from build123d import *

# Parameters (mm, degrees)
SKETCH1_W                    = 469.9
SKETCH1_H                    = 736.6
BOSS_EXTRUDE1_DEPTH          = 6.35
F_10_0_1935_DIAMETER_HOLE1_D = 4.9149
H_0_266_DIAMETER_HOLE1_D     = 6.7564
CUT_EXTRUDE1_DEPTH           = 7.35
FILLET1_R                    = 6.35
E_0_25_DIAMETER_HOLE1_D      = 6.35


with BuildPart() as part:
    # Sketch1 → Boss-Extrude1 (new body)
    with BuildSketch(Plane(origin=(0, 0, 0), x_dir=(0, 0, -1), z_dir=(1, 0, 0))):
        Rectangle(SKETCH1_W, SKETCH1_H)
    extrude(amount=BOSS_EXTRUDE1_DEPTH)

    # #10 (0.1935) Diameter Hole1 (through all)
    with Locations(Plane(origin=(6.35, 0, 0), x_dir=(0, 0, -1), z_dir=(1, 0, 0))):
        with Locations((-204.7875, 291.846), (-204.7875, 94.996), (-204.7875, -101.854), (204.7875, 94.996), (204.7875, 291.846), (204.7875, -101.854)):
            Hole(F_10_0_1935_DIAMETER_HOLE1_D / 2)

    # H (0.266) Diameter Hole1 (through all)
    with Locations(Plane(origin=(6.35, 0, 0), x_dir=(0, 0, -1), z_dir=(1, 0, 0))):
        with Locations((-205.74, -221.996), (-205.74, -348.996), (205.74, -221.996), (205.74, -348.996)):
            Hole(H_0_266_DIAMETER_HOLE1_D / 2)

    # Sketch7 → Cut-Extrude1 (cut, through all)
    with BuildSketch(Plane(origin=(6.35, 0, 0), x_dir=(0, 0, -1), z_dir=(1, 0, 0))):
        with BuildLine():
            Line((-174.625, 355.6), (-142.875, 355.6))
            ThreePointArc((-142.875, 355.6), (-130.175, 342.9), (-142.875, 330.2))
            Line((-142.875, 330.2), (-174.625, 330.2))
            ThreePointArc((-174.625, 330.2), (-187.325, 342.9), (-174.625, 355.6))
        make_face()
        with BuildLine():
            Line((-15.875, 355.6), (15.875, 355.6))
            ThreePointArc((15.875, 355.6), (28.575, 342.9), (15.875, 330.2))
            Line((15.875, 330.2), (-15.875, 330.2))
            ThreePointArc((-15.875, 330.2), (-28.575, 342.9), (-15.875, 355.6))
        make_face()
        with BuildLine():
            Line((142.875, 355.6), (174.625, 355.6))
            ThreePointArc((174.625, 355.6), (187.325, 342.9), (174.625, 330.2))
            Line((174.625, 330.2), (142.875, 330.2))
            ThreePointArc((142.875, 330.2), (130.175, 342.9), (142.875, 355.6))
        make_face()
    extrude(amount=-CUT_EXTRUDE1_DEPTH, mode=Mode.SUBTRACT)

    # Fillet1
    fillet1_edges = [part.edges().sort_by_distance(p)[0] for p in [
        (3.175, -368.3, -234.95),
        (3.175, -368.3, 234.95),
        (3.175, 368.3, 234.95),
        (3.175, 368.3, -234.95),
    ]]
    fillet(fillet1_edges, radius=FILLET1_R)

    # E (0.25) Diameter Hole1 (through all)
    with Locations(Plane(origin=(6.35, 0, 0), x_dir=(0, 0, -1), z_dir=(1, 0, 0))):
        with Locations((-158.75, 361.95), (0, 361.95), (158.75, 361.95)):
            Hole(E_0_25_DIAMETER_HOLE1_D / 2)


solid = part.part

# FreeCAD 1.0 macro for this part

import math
import FreeCAD as App
import Part
import Sketcher

V = App.Vector
Q = App.Units.Quantity


def edges_at(feature, points):
    """Names of the edges that pass closest to the given points."""
    edges = feature.Shape.Edges
    near = lambda p: min(range(len(edges)), key=lambda i: edges[i].distToShape(Part.Vertex(*p))[0])
    return sorted({f"Edge{near(p) + 1}" for p in points})

doc = App.newDocument("Part")
params = doc.addObject("Spreadsheet::Sheet", "Params")
for row, (alias, value) in enumerate([
    ("sketch1_width", "29 in"),
    ("sketch1_height", "18.5 in"),
    ("pad1_length", "0.25 in"),
    ("hole_diameter", "0.1935 in"),
    ("sketch3_diameter", "0.266 in"),
    ("hole2_diameter", "0.266 in"),
    ("sketch4_radius", "0.5 in"),
    ("sketch4_height", "1.25 in"),
    ("fillet_radius", "0.25 in"),
    ("sketch5_diameter", "0.25 in"),
    ("hole3_diameter", "0.25 in"),
], start=1):
    params.set(f"A{row}", alias)
    params.set(f"B{row}", "=" + value)
    params.setAlias(f"B{row}", alias)

body = doc.addObject("PartDesign::Body", "Body")

# Sketch on YZ plane
sketch1 = doc.addObject("Sketcher::SketchObject", "Sketch")
body.addObject(sketch1)
sketch1.AttachmentSupport = (doc.YZ_Plane, [""])
sketch1.MapMode = "FlatFace"
sketch1.addGeometry([
    Part.LineSegment(V(368, 235, 0), V(-368, 235, 0)),
    Part.LineSegment(V(-368, 235, 0), V(-368, -235, 0)),
    Part.LineSegment(V(-368, -235, 0), V(368, -235, 0)),
    Part.LineSegment(V(368, -235, 0), V(368, 235, 0)),
], False)
sketch1.addConstraint([
    Sketcher.Constraint("Coincident", 0, 2, 1, 1),
    Sketcher.Constraint("Coincident", 1, 2, 2, 1),
    Sketcher.Constraint("Coincident", 2, 2, 3, 1),
    Sketcher.Constraint("Coincident", 3, 2, 0, 1),
    Sketcher.Constraint("Horizontal", 0),
    Sketcher.Constraint("Vertical", 1),
    Sketcher.Constraint("Horizontal", 2),
    Sketcher.Constraint("Vertical", 3),
    Sketcher.Constraint("Symmetric", 0, 2, 2, 2, -1, 1),
    Sketcher.Constraint("DistanceX", 0, 2, 0, 1, Q("29 in")),
    Sketcher.Constraint("DistanceY", 1, 2, 1, 1, Q("18.5 in")),
])
sketch1.setExpression("Constraints[9]", "Params.sketch1_width")
sketch1.setExpression("Constraints[10]", "Params.sketch1_height")
pad1 = doc.addObject("PartDesign::Pad", "Pad")
body.addObject(pad1)
pad1.Profile = sketch1
pad1.setExpression("Length", "Params.pad1_length")

# Sketch on YZ plane
sketch2 = doc.addObject("Sketcher::SketchObject", "Sketch001")
body.addObject(sketch2)
sketch2.AttachmentSupport = (doc.YZ_Plane, [""])
sketch2.MapMode = "FlatFace"
sketch2.AttachmentOffset = App.Placement(V(0, 0, 0.25 * 25.4), App.Rotation())
sketch2.addGeometry([
    Part.Circle(V(291.8, 204.8, 0), V(0, 0, 1), 2.5),  # 0
    Part.Circle(V(95, 204.8, 0), V(0, 0, 1), 2.5),  # 1
    Part.Circle(V(-101.9, 204.8, 0), V(0, 0, 1), 2.5),  # 2
    Part.Circle(V(95, -204.8, 0), V(0, 0, 1), 2.5),  # 3
    Part.Circle(V(291.8, -204.8, 0), V(0, 0, 1), 2.5),  # 4
    Part.Circle(V(-101.9, -204.8, 0), V(0, 0, 1), 2.5),  # 5
], False)
sketch2.addConstraint([
    Sketcher.Constraint("Equal", 0, 1),
    Sketcher.Constraint("Equal", 1, 2),
    Sketcher.Constraint("Equal", 2, 3),
    Sketcher.Constraint("Equal", 3, 4),
    Sketcher.Constraint("Equal", 4, 5),
    Sketcher.Constraint("Symmetric", 1, 3, 3, 3, -1),
    Sketcher.Constraint("Symmetric", 0, 3, 4, 3, -1),
    Sketcher.Constraint("Symmetric", 2, 3, 5, 3, -1),
    Sketcher.Constraint("Horizontal", 0, 3, 1, 3),
    Sketcher.Constraint("Horizontal", 1, 3, 2, 3),
    Sketcher.Constraint("Diameter", 0, Q("0.1935 in")),
    Sketcher.Constraint("DistanceX", 2, 3, 0, 3, Q("15.5 in")),
    Sketcher.Constraint("DistanceX", -1, 1, 0, 3, Q("11.49 in")),
    Sketcher.Constraint("DistanceX", -1, 1, 1, 3, Q("3.74 in")),
    Sketcher.Constraint("DistanceY", -1, 1, 0, 3, Q("8.0625 in")),
])
doc.recompute()
hole = doc.addObject("PartDesign::Hole", "Hole")
body.addObject(hole)
hole.Profile = sketch2
hole.ThreadType = "None"
hole.setExpression("Diameter", "Params.hole_diameter")
hole.DepthType = "ThroughAll"

# Sketch on YZ plane
sketch3 = doc.addObject("Sketcher::SketchObject", "Sketch002")
body.addObject(sketch3)
sketch3.AttachmentSupport = (doc.YZ_Plane, [""])
sketch3.MapMode = "FlatFace"
sketch3.AttachmentOffset = App.Placement(V(0, 0, 0.25 * 25.4), App.Rotation())
sketch3.addGeometry([
    Part.Circle(V(-222, 205.7, 0), V(0, 0, 1), 3.4),
    Part.Circle(V(-349, 205.7, 0), V(0, 0, 1), 3.4),
    Part.Circle(V(-222, -205.7, 0), V(0, 0, 1), 3.4),
    Part.Circle(V(-349, -205.7, 0), V(0, 0, 1), 3.4),
], False)
sketch3.addConstraint([
    Sketcher.Constraint("Equal", 0, 1),
    Sketcher.Constraint("Equal", 1, 2),
    Sketcher.Constraint("Equal", 2, 3),
    Sketcher.Constraint("Symmetric", 0, 3, 2, 3, -1),
    Sketcher.Constraint("Symmetric", 1, 3, 3, 3, -1),
    Sketcher.Constraint("Horizontal", 0, 3, 1, 3),
    Sketcher.Constraint("Diameter", 0, Q("0.266 in")),
    Sketcher.Constraint("DistanceX", 1, 3, 0, 3, Q("5 in")),
    Sketcher.Constraint("DistanceY", -1, 1, 0, 3, Q("8.1 in")),
    Sketcher.Constraint("DistanceX", 0, 3, -1, 1, Q("8.74 in")),
])
sketch3.setExpression("Constraints[6]", "Params.sketch3_diameter")
doc.recompute()
hole2 = doc.addObject("PartDesign::Hole", "Hole001")
body.addObject(hole2)
hole2.Profile = sketch3
hole2.ThreadType = "None"
hole2.setExpression("Diameter", "Params.hole2_diameter")
hole2.DepthType = "ThroughAll"

# Sketch on YZ plane
sketch4 = doc.addObject("Sketcher::SketchObject", "Sketch003")
body.addObject(sketch4)
sketch4.AttachmentSupport = (doc.YZ_Plane, [""])
sketch4.MapMode = "FlatFace"
sketch4.AttachmentOffset = App.Placement(V(0, 0, 0.25 * 25.4), App.Rotation())
sketch4.addGeometry([
    Part.LineSegment(V(356, 143, 0), V(356, 175, 0)),  # 0
    Part.ArcOfCircle(Part.Circle(V(343, 175, 0), V(0, 0, 1), 13), math.radians(0), math.radians(180)),  # 1
    Part.LineSegment(V(330, 175, 0), V(330, 143, 0)),  # 2
    Part.ArcOfCircle(Part.Circle(V(343, 143, 0), V(0, 0, 1), 13), math.radians(180), math.radians(360)),  # 3
    Part.LineSegment(V(356, -16, 0), V(356, 16, 0)),  # 4
    Part.ArcOfCircle(Part.Circle(V(343, 16, 0), V(0, 0, 1), 13), math.radians(0), math.radians(180)),  # 5
    Part.LineSegment(V(330, 16, 0), V(330, -16, 0)),  # 6
    Part.ArcOfCircle(Part.Circle(V(343, -16, 0), V(0, 0, 1), 13), math.radians(180), math.radians(360)),  # 7
    Part.LineSegment(V(356, -175, 0), V(356, -143, 0)),  # 8
    Part.ArcOfCircle(Part.Circle(V(343, -143, 0), V(0, 0, 1), 13), math.radians(0), math.radians(180)),  # 9
    Part.LineSegment(V(330, -143, 0), V(330, -175, 0)),  # 10
    Part.ArcOfCircle(Part.Circle(V(343, -175, 0), V(0, 0, 1), 13), math.radians(180), math.radians(360)),  # 11
], False)
sketch4.addConstraint([
    Sketcher.Constraint("Tangent", 0, 2, 1, 1),
    Sketcher.Constraint("Tangent", 1, 2, 2, 1),
    Sketcher.Constraint("Tangent", 2, 2, 3, 1),
    Sketcher.Constraint("Tangent", 3, 2, 0, 1),
    Sketcher.Constraint("Tangent", 4, 2, 5, 1),
    Sketcher.Constraint("Tangent", 5, 2, 6, 1),
    Sketcher.Constraint("Tangent", 6, 2, 7, 1),
    Sketcher.Constraint("Tangent", 7, 2, 4, 1),
    Sketcher.Constraint("Tangent", 8, 2, 9, 1),
    Sketcher.Constraint("Tangent", 9, 2, 10, 1),
    Sketcher.Constraint("Tangent", 10, 2, 11, 1),
    Sketcher.Constraint("Tangent", 11, 2, 8, 1),
    Sketcher.Constraint("Vertical", 0),
    Sketcher.Constraint("Vertical", 2),
    Sketcher.Constraint("Vertical", 4),
    Sketcher.Constraint("Vertical", 6),
    Sketcher.Constraint("Vertical", 8),
    Sketcher.Constraint("Vertical", 10),
    Sketcher.Constraint("Equal", 3, 5),
    Sketcher.Constraint("Equal", 7, 9),
    Sketcher.Constraint("Symmetric", 3, 3, 9, 3, -1),
    Sketcher.Constraint("Vertical", 3, 3, 5, 3),
    Sketcher.Constraint("Equal", 2, 4),
    Sketcher.Constraint("Equal", 6, 8),
    Sketcher.Constraint("Radius", 1, Q("0.5 in")),
    Sketcher.Constraint("DistanceX", -1, 1, 0, 2, Q("14 in")),
    Sketcher.Constraint("DistanceY", 5, 3, 3, 3, Q("5 in")),
    Sketcher.Constraint("DistanceY", 9, 3, 7, 3, Q("5 in")),
    Sketcher.Constraint("DistanceY", 0, 1, 0, 2, Q("1.25 in")),
])
sketch4.setExpression("Constraints[24]", "Params.sketch4_radius")
sketch4.setExpression("Constraints[28]", "Params.sketch4_height")
pocket1 = doc.addObject("PartDesign::Pocket", "Pocket")
body.addObject(pocket1)
pocket1.Profile = sketch4
pocket1.Type = "ThroughAll"
doc.recompute()

fillet = doc.addObject("PartDesign::Fillet", "Fillet")
body.addObject(fillet)
fillet.Base = (pocket1, edges_at(pocket1, [
    (3.175, -368.3, -234.95),
    (3.175, -368.3, 234.95),
    (3.175, 368.3, 234.95),
    (3.175, 368.3, -234.95),
]))
fillet.setExpression("Radius", "Params.fillet_radius")

# Sketch on YZ plane
sketch5 = doc.addObject("Sketcher::SketchObject", "Sketch004")
body.addObject(sketch5)
sketch5.AttachmentSupport = (doc.YZ_Plane, [""])
sketch5.MapMode = "FlatFace"
sketch5.AttachmentOffset = App.Placement(V(0, 0, 0.25 * 25.4), App.Rotation())
sketch5.addGeometry([
    Part.Circle(V(361.9, 158.8, 0), V(0, 0, 1), 3.2),
    Part.Circle(V(361.9, 0, 0), V(0, 0, 1), 3.2),
    Part.Circle(V(361.9, -158.8, 0), V(0, 0, 1), 3.2),
], False)
sketch5.addConstraint([
    Sketcher.Constraint("Equal", 0, 1),
    Sketcher.Constraint("Equal", 1, 2),
    Sketcher.Constraint("Symmetric", 0, 3, 2, 3, -1),
    Sketcher.Constraint("PointOnObject", 1, 3, -1),
    Sketcher.Constraint("Vertical", 0, 3, 1, 3),
    Sketcher.Constraint("Diameter", 0, Q("0.25 in")),
    Sketcher.Constraint("DistanceY", 2, 3, 0, 3, Q("12.5 in")),
    Sketcher.Constraint("DistanceX", -1, 1, 0, 3, Q("14.25 in")),
])
sketch5.setExpression("Constraints[5]", "Params.sketch5_diameter")
doc.recompute()
hole3 = doc.addObject("PartDesign::Hole", "Hole002")
body.addObject(hole3)
hole3.Profile = sketch5
hole3.ThreadType = "None"
hole3.setExpression("Diameter", "Params.hole3_diameter")
hole3.DepthType = "ThroughAll"

doc.recompute()
